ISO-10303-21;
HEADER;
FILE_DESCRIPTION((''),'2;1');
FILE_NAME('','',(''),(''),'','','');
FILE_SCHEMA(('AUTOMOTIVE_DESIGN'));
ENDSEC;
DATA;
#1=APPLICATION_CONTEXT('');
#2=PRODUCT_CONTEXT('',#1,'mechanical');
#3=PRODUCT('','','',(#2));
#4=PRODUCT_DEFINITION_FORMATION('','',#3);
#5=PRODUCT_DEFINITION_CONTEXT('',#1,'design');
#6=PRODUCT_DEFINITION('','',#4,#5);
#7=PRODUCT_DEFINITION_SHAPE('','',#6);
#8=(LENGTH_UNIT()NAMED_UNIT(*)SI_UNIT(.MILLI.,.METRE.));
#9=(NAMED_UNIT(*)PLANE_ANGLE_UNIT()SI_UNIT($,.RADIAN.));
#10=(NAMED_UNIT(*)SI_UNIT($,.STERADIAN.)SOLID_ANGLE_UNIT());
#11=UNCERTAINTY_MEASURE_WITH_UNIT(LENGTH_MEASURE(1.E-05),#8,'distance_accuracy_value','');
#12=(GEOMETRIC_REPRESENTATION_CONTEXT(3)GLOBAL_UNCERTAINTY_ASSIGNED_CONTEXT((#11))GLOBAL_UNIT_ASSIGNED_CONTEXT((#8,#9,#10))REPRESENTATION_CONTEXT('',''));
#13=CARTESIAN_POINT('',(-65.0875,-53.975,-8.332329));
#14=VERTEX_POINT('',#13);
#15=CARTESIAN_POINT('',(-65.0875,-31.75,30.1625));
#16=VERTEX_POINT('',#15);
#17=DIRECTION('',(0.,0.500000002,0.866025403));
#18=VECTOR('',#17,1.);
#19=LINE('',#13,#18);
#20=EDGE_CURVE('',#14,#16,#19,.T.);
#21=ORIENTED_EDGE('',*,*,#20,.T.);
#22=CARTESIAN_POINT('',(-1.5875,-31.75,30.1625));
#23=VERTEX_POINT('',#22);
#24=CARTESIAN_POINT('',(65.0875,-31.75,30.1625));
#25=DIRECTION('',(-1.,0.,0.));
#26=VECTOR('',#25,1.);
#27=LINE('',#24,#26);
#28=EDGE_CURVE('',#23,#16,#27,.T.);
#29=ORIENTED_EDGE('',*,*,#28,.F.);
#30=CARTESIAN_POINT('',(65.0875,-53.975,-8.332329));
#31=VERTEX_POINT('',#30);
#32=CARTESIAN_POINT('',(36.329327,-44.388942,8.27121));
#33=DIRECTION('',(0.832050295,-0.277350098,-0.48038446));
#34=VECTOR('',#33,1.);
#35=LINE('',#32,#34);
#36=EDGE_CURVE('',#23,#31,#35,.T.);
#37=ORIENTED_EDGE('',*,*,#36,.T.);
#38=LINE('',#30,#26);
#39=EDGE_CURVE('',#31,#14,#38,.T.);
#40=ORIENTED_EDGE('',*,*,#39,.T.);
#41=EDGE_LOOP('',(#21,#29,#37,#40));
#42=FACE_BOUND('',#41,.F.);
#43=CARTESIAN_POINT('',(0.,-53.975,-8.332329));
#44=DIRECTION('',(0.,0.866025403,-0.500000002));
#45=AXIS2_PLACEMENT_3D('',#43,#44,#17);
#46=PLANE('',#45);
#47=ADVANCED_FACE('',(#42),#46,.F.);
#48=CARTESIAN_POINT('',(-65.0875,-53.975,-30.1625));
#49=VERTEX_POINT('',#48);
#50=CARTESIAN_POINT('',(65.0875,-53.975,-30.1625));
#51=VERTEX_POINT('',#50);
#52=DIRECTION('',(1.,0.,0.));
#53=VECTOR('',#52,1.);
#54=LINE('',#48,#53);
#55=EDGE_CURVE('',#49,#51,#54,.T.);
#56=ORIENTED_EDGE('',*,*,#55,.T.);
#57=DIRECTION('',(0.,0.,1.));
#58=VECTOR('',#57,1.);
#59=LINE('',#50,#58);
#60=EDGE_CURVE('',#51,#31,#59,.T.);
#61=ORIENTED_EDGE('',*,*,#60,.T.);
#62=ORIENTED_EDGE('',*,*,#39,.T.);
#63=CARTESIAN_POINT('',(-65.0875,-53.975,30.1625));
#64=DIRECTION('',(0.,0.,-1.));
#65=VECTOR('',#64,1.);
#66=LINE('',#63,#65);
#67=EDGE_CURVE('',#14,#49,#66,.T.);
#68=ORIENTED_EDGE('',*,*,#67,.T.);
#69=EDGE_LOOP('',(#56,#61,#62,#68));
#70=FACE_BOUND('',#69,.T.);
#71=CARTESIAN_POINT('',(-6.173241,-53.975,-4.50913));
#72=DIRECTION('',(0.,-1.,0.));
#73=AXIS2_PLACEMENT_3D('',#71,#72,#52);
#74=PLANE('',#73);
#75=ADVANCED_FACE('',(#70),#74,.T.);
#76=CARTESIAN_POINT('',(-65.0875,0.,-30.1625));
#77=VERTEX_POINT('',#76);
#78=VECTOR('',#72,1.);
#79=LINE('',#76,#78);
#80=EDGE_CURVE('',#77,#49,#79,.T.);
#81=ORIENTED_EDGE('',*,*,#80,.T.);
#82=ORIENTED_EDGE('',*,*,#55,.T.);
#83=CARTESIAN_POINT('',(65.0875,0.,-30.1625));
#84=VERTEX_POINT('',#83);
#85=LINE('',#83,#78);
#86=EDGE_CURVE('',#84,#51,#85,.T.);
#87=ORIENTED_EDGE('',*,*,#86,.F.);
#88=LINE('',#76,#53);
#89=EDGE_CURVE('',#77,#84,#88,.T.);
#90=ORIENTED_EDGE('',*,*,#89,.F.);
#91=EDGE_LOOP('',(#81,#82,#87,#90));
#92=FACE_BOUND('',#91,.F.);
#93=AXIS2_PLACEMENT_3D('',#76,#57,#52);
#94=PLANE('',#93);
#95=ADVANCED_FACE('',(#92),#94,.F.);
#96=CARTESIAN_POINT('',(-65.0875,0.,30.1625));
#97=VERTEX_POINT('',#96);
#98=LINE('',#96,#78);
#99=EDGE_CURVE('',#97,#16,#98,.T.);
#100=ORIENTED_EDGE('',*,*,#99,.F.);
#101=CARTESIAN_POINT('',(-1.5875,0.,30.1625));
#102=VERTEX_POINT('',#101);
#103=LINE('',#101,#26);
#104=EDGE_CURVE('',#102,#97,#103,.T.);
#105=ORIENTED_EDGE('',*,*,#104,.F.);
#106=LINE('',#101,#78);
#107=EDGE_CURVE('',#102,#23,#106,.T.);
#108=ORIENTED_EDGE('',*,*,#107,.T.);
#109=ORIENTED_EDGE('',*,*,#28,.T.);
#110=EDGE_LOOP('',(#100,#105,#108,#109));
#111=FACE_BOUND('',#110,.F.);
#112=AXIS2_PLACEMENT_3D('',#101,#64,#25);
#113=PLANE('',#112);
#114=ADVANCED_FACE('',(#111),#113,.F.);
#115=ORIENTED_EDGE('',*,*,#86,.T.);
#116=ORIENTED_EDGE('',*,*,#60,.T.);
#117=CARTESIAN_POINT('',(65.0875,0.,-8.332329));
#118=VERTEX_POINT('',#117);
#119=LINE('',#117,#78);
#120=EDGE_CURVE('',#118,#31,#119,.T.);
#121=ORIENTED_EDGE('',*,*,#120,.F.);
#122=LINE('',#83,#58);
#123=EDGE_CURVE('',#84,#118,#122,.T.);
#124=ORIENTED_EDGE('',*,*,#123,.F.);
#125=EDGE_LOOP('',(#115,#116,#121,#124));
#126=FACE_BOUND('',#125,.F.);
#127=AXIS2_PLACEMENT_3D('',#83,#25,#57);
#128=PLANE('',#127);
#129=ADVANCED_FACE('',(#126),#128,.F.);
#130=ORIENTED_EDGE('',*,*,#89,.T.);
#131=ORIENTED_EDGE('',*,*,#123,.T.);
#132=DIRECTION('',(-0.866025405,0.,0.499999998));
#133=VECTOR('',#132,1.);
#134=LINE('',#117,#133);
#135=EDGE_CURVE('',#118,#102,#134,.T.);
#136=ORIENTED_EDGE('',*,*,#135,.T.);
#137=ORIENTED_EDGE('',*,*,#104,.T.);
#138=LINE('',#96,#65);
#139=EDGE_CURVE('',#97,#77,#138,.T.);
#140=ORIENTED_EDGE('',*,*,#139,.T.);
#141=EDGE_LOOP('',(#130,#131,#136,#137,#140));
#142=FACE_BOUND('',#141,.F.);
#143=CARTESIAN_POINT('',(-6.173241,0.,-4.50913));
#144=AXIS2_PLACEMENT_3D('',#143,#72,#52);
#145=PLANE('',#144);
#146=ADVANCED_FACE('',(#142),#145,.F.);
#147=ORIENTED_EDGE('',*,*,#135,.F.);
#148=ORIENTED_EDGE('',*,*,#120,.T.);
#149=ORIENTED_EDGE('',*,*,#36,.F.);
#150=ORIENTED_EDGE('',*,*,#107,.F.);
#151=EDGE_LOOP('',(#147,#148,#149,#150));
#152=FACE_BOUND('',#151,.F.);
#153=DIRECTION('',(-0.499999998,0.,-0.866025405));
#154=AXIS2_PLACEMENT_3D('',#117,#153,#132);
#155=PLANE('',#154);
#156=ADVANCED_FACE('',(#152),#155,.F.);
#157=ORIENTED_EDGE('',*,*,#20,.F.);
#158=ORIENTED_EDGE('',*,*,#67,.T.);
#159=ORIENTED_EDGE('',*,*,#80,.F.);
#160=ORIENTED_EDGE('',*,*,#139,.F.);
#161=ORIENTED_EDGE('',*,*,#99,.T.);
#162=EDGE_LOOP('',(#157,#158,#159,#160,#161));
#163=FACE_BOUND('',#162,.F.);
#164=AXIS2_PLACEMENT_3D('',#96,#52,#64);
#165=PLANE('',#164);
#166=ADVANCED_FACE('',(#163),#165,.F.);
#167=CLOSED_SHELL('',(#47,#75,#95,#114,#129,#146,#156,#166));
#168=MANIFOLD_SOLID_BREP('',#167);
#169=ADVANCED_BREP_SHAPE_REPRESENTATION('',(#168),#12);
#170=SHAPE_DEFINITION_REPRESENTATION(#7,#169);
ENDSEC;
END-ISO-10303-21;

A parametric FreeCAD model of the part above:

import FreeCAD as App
import Part
import Sketcher
Q = App.Units.Quantity


def add_polygon(sketch, points):
    """Adds a closed chain of lines whose ends are joined by coincident constraints."""
    first, n = sketch.GeometryCount, len(points)
    for a, b in zip(points, points[1:] + points[:1]):
        sketch.addGeometry(Part.LineSegment(App.Vector(*a, 0), App.Vector(*b, 0)), False)
    for i in range(n):
        sketch.addConstraint(Sketcher.Constraint("Coincident", first + i, 2, first + (i + 1) % n, 1))

doc = App.newDocument("Part")
body = doc.addObject("PartDesign::Body", "Body")

sketch1 = body.newObject("Sketcher::SketchObject", "Sketch")
sketch1.AttachmentSupport = (doc.getObject("XZ_Plane"), [""])
sketch1.MapMode = "FlatFace"
add_polygon(sketch1, [(-65.0875, 30.1625), (-65.0875, -30.1625), (65.0875, -30.1625), (65.0875, -8.332329), (-1.5875, 30.1625)])
sketch1.addConstraint([
    Sketcher.Constraint("Vertical", 0),
    Sketcher.Constraint("Horizontal", 1),
    Sketcher.Constraint("Vertical", 2),
    Sketcher.Constraint("Horizontal", 4),
    Sketcher.Constraint("Symmetric", 1, 2, 4, 2, -1, 1),
    Sketcher.Constraint("DistanceX", 4, 2, 4, 1, Q("2.5 in")),
    Sketcher.Constraint("Angle", 3, Q("150 deg")),
    Sketcher.Constraint("DistanceX", 1, 1, 1, 2, Q("5.125 in")),
    Sketcher.Constraint("DistanceY", 0, 2, 0, 1, Q("2.375 in")),
])
pad1 = body.newObject("PartDesign::Pad", "Pad")
pad1.Profile = sketch1
pad1.Length = Q("2.125 in")

sketch2 = body.newObject("Sketcher::SketchObject", "Sketch001")
sketch2.AttachmentSupport = (doc.getObject("YZ_Plane"), [""])
sketch2.MapMode = "FlatFace"
add_polygon(sketch2, [(-31.75, 30.1625), (-53.975, 30.1625), (-53.975, -8.332329)])
sketch2.addConstraint([
    Sketcher.Constraint("Horizontal", 0),
    Sketcher.Constraint("Vertical", 1),
    Sketcher.Constraint("Angle", 2, Q("60 deg")),
    Sketcher.Constraint("Distance", 2, Q("1.75 in")),
    Sketcher.Constraint("DistanceX", 2, 2, -1, 1, Q("1.25 in")),
    Sketcher.Constraint("DistanceY", -1, 1, 0, 2, Q("1.1875 in")),
])
pocket1 = body.newObject("PartDesign::Pocket", "Pocket")
pocket1.Profile = sketch2
pocket1.Length = Q("5.125 in")
pocket1.Midplane = True

doc.recompute()
